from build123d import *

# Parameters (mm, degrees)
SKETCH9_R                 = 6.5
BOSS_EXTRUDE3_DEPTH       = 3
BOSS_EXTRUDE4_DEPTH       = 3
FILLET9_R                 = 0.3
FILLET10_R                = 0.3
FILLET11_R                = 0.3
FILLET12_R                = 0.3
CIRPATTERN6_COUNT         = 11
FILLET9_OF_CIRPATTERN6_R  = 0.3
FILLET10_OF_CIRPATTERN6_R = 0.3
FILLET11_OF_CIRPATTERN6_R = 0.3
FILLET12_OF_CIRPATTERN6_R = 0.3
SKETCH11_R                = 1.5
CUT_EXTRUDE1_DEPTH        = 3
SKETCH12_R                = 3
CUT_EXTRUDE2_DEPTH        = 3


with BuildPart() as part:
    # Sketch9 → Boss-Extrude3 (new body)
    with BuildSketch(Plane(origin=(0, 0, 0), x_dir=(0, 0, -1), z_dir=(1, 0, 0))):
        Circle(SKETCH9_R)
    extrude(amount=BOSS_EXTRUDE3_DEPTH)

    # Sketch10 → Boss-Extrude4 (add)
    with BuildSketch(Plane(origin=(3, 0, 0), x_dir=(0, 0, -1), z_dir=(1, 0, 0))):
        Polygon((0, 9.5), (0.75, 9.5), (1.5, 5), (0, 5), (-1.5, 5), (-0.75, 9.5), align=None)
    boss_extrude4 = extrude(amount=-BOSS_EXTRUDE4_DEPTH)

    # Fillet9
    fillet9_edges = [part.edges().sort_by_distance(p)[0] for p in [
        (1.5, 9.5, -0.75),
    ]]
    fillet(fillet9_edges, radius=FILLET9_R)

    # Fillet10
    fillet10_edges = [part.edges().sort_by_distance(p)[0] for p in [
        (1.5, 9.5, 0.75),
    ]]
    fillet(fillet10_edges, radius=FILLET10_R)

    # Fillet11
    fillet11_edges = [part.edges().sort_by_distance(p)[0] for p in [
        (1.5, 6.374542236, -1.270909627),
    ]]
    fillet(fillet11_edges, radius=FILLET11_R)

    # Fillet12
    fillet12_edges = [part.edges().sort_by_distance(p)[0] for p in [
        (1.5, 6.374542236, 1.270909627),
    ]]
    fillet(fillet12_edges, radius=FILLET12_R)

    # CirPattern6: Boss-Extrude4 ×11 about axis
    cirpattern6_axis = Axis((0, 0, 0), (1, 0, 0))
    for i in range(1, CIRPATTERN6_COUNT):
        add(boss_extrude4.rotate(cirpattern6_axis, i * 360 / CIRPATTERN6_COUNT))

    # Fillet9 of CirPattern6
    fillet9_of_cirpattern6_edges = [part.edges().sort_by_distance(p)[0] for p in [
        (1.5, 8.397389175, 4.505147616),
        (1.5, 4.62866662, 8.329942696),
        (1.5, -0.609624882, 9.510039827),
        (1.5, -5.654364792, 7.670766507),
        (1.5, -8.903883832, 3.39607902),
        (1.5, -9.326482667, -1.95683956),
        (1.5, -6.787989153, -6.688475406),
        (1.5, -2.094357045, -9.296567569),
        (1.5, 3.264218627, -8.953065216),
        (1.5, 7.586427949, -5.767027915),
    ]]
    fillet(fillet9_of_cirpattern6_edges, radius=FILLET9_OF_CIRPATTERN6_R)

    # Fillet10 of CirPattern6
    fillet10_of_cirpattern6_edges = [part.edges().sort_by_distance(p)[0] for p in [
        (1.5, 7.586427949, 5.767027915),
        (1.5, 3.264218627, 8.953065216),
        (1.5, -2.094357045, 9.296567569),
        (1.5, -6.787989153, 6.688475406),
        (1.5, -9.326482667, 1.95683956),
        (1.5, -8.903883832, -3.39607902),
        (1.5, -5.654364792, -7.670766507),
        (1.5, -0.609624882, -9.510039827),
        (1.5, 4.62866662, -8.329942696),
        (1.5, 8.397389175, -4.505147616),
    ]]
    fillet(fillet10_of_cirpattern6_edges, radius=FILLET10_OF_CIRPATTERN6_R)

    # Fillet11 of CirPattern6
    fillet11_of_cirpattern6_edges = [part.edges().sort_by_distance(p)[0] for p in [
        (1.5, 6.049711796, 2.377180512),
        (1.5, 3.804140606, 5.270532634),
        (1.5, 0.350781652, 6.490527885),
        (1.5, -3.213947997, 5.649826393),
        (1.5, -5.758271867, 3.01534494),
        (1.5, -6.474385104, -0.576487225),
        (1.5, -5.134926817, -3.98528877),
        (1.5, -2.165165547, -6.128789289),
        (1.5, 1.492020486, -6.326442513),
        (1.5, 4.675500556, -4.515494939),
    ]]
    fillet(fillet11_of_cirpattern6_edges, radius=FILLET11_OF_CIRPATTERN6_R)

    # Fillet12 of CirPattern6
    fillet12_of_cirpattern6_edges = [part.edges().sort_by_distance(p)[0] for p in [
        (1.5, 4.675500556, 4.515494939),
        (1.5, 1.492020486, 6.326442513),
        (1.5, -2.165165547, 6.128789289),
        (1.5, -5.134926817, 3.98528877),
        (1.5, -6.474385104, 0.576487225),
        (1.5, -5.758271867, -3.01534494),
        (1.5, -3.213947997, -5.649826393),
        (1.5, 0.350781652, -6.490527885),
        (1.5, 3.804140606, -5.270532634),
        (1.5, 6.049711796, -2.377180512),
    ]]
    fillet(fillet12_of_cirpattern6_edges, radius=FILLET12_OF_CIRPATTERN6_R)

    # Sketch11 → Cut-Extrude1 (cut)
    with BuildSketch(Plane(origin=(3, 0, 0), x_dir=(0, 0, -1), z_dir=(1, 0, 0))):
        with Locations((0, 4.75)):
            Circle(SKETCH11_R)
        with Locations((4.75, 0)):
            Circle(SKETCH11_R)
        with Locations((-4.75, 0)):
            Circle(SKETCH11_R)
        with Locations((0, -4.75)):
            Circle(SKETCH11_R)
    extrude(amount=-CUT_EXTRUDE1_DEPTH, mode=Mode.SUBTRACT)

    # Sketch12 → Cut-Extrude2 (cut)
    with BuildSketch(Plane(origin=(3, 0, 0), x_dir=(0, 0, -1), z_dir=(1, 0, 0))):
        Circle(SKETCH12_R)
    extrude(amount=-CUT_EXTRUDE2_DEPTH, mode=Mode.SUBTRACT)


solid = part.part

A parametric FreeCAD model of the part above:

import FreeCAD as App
import Part
import Sketcher
from FreeCAD import Vector
Q = App.Units.Quantity


def edges_at(feature, points):
    """Names of the edges that pass closest to the given points."""
    edges = feature.Shape.Edges
    near = lambda p: min(range(len(edges)), key=lambda i: edges[i].distToShape(Part.Vertex(*p))[0])
    return sorted({f"Edge{near(p) + 1}" for p in points})


def add_polygon(sketch, points):
    """Adds a closed chain of lines whose ends are joined by coincident constraints."""
    first, n = sketch.GeometryCount, len(points)
    for a, b in zip(points, points[1:] + points[:1]):
        sketch.addGeometry(Part.LineSegment(App.Vector(*a, 0), App.Vector(*b, 0)), False)
    for i in range(n):
        sketch.addConstraint(Sketcher.Constraint("Coincident", first + i, 2, first + (i + 1) % n, 1))

doc = App.newDocument("Part")
params = doc.addObject("Spreadsheet::Sheet", "Params")
for row, (alias, value) in enumerate([
    ("sketch1_diameter", "13 mm"),
    ("pad1_length", "3 mm"),
    ("sketch2_height", "3 mm"),
    ("sketch2_height2", "1.5 mm"),
    ("pad2_length", "3 mm"),
    ("fillet_radius", "0.3 mm"),
    ("fillet2_radius", "0.3 mm"),
    ("fillet3_radius", "0.3 mm"),
    ("fillet4_radius", "0.3 mm"),
    ("fillet5_radius", "0.3 mm"),
    ("fillet6_radius", "0.3 mm"),
    ("fillet7_radius", "0.3 mm"),
    ("fillet8_radius", "0.3 mm"),
    ("sketch3_diameter", "3 mm"),
    ("pocket1_length", "3 mm"),
    ("sketch4_diameter", "6 mm"),
    ("pocket2_length", "3 mm"),
], start=1):
    params.set(f"A{row}", alias)
    params.set(f"B{row}", "=" + value)
    params.setAlias(f"B{row}", alias)

body = doc.addObject("PartDesign::Body", "Body")

sketch1 = body.newObject("Sketcher::SketchObject", "Sketch")
sketch1.AttachmentSupport = (doc.getObject("YZ_Plane"), [""])
sketch1.MapMode = "FlatFace"
sketch1.addGeometry(Part.Circle(Vector(0, 0, 0), Vector(0, 0, 1), 6), False)
sketch1.addConstraint([
    Sketcher.Constraint("Coincident", 0, 3, -1, 1),
    Sketcher.Constraint("Diameter", 0, Q("13 mm")),
])
sketch1.setExpression("Constraints[1]", "Params.sketch1_diameter")
pad1 = body.newObject("PartDesign::Pad", "Pad")
pad1.Profile = sketch1
pad1.setExpression("Length", "Params.pad1_length")

sketch2 = body.newObject("Sketcher::SketchObject", "Sketch001")
sketch2.AttachmentSupport = (doc.getObject("YZ_Plane"), [""])
sketch2.MapMode = "FlatFace"
sketch2.AttachmentOffset = App.Placement(Vector(0, 0, 3), App.Rotation())
add_polygon(sketch2, [(9.5, -0.8), (9.5, 0.8), (5, 1.5), (5, -1.5)])
sketch2.addConstraint([
    Sketcher.Constraint("Vertical", 0),
    Sketcher.Constraint("Vertical", 2),
    Sketcher.Constraint("Equal", 1, 3),
    Sketcher.Constraint("DistanceY", 2, 2, 2, 1, Q("3 mm")),
    Sketcher.Constraint("DistanceY", 0, 1, 0, 2, Q("1.5 mm")),
    Sketcher.Constraint("DistanceX", -1, 1, 1, 2, Q("5 mm")),
    Sketcher.Constraint("DistanceX", -1, 1, 0, 2, Q("9.5 mm")),
    Sketcher.Constraint("DistanceY", -1, 1, 1, 2, Q("1.5 mm")),
])
sketch2.setExpression("Constraints[7]", "Params.sketch2_height")
sketch2.setExpression("Constraints[8]", "Params.sketch2_height2")
pad2 = body.newObject("PartDesign::Pad", "Pad001")
pad2.Profile = sketch2
pad2.setExpression("Length", "Params.pad2_length")
pad2.Reversed = True
doc.recompute()

fillet = body.newObject("PartDesign::Fillet", "Fillet")
fillet.Base = (pad2, edges_at(pad2, [(1.5, 9.5, -0.75)]))
fillet.setExpression("Radius", "Params.fillet_radius")
doc.recompute()

fillet2 = body.newObject("PartDesign::Fillet", "Fillet001")
fillet2.Base = (fillet, edges_at(fillet, [(1.5, 9.5, 0.75)]))
fillet2.setExpression("Radius", "Params.fillet2_radius")
doc.recompute()

fillet3 = body.newObject("PartDesign::Fillet", "Fillet002")
fillet3.Base = (fillet2, edges_at(fillet2, [(1.5, 6.375, -1.271)]))
fillet3.setExpression("Radius", "Params.fillet3_radius")
doc.recompute()

fillet4 = body.newObject("PartDesign::Fillet", "Fillet003")
fillet4.Base = (fillet3, edges_at(fillet3, [(1.5, 6.375, 1.271)]))
fillet4.setExpression("Radius", "Params.fillet4_radius")
doc.recompute()

polarpattern = body.newObject("PartDesign::PolarPattern", "PolarPattern")
polarpattern.Originals = [pad2]
polarpattern.Axis = (doc.getObject("X_Axis"), [""])
polarpattern.Angle = 360
polarpattern.Occurrences = 11
body.Tip = polarpattern
doc.recompute()

fillet5 = body.newObject("PartDesign::Fillet", "Fillet004")
fillet5.Base = (polarpattern, edges_at(polarpattern, [
    (1.5, 8.397, 4.505),
    (1.5, 4.629, 8.33),
    (1.5, -0.61, 9.51),
    (1.5, -5.654, 7.671),
    (1.5, -8.904, 3.396),
    (1.5, -9.326, -1.957),
    (1.5, -6.788, -6.688),
    (1.5, -2.094, -9.297),
    (1.5, 3.264, -8.953),
    (1.5, 7.586, -5.767),
]))
fillet5.setExpression("Radius", "Params.fillet5_radius")
doc.recompute()

fillet6 = body.newObject("PartDesign::Fillet", "Fillet005")
fillet6.Base = (fillet5, edges_at(fillet5, [
    (1.5, 7.586, 5.767),
    (1.5, 3.264, 8.953),
    (1.5, -2.094, 9.297),
    (1.5, -6.788, 6.688),
    (1.5, -9.326, 1.957),
    (1.5, -8.904, -3.396),
    (1.5, -5.654, -7.671),
    (1.5, -0.61, -9.51),
    (1.5, 4.629, -8.33),
    (1.5, 8.397, -4.505),
]))
fillet6.setExpression("Radius", "Params.fillet6_radius")
doc.recompute()

fillet7 = body.newObject("PartDesign::Fillet", "Fillet006")
fillet7.Base = (fillet6, edges_at(fillet6, [
    (1.5, 6.05, 2.377),
    (1.5, 3.804, 5.271),
    (1.5, 0.351, 6.491),
    (1.5, -3.214, 5.65),
    (1.5, -5.758, 3.015),
    (1.5, -6.474, -0.576),
    (1.5, -5.135, -3.985),
    (1.5, -2.165, -6.129),
    (1.5, 1.492, -6.326),
    (1.5, 4.676, -4.515),
]))
fillet7.setExpression("Radius", "Params.fillet7_radius")
doc.recompute()

fillet8 = body.newObject("PartDesign::Fillet", "Fillet007")
fillet8.Base = (fillet7, edges_at(fillet7, [
    (1.5, 4.676, 4.515),
    (1.5, 1.492, 6.326),
    (1.5, -2.165, 6.129),
    (1.5, -5.135, 3.985),
    (1.5, -6.474, 0.576),
    (1.5, -5.758, -3.015),
    (1.5, -3.214, -5.65),
    (1.5, 0.351, -6.491),
    (1.5, 3.804, -5.271),
    (1.5, 6.05, -2.377),
]))
fillet8.setExpression("Radius", "Params.fillet8_radius")

sketch3 = body.newObject("Sketcher::SketchObject", "Sketch002")
sketch3.AttachmentSupport = (doc.getObject("YZ_Plane"), [""])
sketch3.MapMode = "FlatFace"
sketch3.AttachmentOffset = App.Placement(Vector(0, 0, 3), App.Rotation())
sketch3.addGeometry([
    Part.Circle(Vector(4.8, 0, 0), Vector(0, 0, 1), 1.5),
    Part.Circle(Vector(0, -4.8, 0), Vector(0, 0, 1), 1.5),
    Part.Circle(Vector(0, 4.8, 0), Vector(0, 0, 1), 1.5),
    Part.Circle(Vector(-4.8, 0, 0), Vector(0, 0, 1), 1.5),
], False)
sketch3.addConstraint([
    Sketcher.Constraint("Equal", 0, 1),
    Sketcher.Constraint("Equal", 1, 2),
    Sketcher.Constraint("Equal", 2, 3),
    Sketcher.Constraint("Symmetric", 1, 3, 2, 3, -1, 1),
    Sketcher.Constraint("Symmetric", 0, 3, 3, 3, -1, 1),
    Sketcher.Constraint("PointOnObject", 0, 3, -1),
    Sketcher.Constraint("PointOnObject", 1, 3, -2),
    Sketcher.Constraint("Diameter", 0, Q("3 mm")),
    Sketcher.Constraint("DistanceY", 1, 3, 2, 3, Q("9.5 mm")),
    Sketcher.Constraint("DistanceX", 3, 3, 0, 3, Q("9.5 mm")),
])
sketch3.setExpression("Constraints[7]", "Params.sketch3_diameter")
pocket1 = body.newObject("PartDesign::Pocket", "Pocket")
pocket1.Profile = sketch3
pocket1.setExpression("Length", "Params.pocket1_length")

sketch4 = body.newObject("Sketcher::SketchObject", "Sketch003")
sketch4.AttachmentSupport = (doc.getObject("YZ_Plane"), [""])
sketch4.MapMode = "FlatFace"
sketch4.AttachmentOffset = App.Placement(Vector(0, 0, 3), App.Rotation())
sketch4.addGeometry(Part.Circle(Vector(0, 0, 0), Vector(0, 0, 1), 3), False)
sketch4.addConstraint([
    Sketcher.Constraint("Coincident", 0, 3, -1, 1),
    Sketcher.Constraint("Diameter", 0, Q("6 mm")),
])
sketch4.setExpression("Constraints[1]", "Params.sketch4_diameter")
pocket2 = body.newObject("PartDesign::Pocket", "Pocket001")
pocket2.Profile = sketch4
pocket2.setExpression("Length", "Params.pocket2_length")

doc.recompute()
